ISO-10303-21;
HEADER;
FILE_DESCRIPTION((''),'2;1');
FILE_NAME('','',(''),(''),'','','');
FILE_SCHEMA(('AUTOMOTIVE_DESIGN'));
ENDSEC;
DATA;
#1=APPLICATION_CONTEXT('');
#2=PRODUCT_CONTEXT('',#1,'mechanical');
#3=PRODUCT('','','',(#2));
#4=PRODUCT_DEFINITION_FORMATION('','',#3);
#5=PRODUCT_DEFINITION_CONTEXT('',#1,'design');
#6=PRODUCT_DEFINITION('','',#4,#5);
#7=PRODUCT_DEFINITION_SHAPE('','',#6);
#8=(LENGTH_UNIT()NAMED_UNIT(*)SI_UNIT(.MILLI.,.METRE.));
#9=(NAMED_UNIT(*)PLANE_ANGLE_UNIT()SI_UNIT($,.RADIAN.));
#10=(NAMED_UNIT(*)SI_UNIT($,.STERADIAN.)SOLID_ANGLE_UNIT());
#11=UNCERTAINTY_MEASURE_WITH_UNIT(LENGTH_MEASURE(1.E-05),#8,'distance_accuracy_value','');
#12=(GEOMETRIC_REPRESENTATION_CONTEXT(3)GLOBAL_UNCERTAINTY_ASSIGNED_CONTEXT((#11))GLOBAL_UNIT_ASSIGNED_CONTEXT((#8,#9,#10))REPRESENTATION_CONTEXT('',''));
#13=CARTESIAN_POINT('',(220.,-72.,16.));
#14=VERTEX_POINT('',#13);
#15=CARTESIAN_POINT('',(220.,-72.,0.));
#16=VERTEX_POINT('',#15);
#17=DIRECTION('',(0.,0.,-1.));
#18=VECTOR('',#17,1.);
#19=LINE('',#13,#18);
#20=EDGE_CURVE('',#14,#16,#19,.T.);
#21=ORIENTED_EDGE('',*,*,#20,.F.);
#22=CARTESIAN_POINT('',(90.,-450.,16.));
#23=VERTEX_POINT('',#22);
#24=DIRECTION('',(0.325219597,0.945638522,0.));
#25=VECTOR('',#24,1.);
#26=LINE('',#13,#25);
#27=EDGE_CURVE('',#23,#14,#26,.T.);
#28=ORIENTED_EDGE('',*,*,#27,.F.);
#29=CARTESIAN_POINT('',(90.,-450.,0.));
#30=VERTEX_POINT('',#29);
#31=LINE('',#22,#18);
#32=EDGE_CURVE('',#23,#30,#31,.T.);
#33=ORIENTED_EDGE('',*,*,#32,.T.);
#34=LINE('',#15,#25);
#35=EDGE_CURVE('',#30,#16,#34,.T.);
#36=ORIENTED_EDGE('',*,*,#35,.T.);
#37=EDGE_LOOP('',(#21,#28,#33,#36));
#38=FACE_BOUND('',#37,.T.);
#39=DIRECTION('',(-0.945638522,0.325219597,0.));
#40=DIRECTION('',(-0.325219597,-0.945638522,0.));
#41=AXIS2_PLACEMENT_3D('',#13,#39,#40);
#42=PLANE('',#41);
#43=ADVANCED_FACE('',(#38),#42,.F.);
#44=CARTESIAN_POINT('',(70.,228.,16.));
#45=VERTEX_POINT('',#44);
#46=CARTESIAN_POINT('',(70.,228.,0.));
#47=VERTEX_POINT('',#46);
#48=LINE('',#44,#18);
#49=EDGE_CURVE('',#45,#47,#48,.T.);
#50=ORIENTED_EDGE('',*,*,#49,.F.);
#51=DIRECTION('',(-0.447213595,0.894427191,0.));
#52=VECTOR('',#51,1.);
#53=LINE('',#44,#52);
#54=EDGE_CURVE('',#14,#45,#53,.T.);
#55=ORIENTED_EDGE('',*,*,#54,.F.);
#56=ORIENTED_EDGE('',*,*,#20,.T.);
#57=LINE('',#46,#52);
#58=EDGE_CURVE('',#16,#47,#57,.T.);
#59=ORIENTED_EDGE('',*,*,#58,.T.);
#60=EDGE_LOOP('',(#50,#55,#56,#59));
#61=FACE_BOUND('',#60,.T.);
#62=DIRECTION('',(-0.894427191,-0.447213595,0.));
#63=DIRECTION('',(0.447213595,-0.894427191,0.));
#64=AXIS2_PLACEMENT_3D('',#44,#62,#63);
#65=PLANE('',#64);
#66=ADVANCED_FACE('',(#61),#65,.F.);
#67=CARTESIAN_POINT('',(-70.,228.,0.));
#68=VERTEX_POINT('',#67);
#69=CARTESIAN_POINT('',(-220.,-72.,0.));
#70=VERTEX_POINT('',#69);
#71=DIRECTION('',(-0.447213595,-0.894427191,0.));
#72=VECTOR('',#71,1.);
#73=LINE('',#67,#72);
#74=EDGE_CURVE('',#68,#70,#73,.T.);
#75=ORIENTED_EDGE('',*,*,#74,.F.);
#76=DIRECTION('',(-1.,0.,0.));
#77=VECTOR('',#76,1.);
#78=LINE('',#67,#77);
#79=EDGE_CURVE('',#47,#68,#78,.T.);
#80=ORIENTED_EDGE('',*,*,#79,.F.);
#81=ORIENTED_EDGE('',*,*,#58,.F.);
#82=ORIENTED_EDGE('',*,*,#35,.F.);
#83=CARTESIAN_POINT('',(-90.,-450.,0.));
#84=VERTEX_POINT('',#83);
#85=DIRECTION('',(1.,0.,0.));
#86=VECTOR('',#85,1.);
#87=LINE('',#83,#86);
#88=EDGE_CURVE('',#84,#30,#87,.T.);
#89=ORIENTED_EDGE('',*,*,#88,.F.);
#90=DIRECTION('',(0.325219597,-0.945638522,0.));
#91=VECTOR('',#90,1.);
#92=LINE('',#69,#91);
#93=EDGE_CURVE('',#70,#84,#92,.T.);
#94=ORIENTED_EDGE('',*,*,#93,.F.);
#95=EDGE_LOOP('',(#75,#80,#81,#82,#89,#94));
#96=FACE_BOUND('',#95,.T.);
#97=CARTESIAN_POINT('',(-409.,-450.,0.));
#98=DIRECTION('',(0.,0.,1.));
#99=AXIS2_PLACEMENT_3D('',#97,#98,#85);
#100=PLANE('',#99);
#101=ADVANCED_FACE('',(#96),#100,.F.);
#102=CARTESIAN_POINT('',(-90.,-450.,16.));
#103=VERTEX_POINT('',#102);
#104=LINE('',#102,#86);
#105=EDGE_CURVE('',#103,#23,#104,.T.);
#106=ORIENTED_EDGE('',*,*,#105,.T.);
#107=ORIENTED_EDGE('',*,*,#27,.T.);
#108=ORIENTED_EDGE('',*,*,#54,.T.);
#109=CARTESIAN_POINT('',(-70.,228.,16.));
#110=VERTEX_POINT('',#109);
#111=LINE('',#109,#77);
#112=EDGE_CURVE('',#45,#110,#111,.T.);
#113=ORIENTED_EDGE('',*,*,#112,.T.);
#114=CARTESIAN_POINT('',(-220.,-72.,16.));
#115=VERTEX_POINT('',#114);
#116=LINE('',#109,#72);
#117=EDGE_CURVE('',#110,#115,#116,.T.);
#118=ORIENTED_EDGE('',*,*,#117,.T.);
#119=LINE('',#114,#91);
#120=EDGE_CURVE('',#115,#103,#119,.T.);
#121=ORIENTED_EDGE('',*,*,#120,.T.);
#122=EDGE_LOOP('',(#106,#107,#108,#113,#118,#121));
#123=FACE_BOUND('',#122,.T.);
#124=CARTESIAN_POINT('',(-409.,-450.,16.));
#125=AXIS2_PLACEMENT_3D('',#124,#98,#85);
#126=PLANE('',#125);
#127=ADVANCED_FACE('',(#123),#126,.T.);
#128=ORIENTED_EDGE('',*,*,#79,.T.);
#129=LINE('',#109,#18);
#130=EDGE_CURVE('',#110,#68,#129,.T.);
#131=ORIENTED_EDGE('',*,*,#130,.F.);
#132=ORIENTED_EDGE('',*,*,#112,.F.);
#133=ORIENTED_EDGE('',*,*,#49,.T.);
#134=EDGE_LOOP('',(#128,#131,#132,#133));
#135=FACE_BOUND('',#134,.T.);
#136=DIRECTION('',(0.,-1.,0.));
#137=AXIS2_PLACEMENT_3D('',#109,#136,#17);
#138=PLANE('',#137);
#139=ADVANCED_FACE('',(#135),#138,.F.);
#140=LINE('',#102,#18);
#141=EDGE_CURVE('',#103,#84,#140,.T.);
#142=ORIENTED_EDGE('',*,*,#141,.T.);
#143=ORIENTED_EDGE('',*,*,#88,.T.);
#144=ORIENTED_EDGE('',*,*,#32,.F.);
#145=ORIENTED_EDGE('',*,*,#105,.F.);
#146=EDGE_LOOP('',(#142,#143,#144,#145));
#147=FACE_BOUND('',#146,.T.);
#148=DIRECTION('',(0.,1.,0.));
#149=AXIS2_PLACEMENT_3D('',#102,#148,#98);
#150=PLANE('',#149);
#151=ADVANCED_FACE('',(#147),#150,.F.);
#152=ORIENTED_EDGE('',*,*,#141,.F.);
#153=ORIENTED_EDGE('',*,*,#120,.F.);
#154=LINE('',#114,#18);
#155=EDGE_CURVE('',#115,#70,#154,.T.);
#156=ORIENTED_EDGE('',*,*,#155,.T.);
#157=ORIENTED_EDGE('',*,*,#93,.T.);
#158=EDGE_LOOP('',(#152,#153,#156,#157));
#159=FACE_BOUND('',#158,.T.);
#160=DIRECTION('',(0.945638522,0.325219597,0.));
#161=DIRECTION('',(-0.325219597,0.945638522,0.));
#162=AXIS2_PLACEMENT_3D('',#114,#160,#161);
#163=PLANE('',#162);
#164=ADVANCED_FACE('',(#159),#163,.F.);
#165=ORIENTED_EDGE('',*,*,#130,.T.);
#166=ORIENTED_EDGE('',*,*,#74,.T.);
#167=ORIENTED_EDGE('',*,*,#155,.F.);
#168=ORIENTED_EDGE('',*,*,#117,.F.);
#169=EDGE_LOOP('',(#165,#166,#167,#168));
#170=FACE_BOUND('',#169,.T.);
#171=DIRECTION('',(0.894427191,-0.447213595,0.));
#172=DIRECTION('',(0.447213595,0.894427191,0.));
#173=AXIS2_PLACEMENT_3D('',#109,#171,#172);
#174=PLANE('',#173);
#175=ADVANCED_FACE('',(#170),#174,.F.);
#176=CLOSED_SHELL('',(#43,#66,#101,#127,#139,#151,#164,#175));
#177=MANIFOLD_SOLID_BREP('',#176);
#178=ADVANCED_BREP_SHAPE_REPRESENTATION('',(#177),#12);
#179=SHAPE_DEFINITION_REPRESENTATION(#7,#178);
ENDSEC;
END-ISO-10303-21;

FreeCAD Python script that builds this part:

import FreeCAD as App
import Part
import Sketcher
Q = App.Units.Quantity


def add_polygon(sketch, points):
    """Adds a closed chain of lines whose ends are joined by coincident constraints."""
    first, n = sketch.GeometryCount, len(points)
    for a, b in zip(points, points[1:] + points[:1]):
        sketch.addGeometry(Part.LineSegment(App.Vector(*a, 0), App.Vector(*b, 0)), False)
    for i in range(n):
        sketch.addConstraint(Sketcher.Constraint("Coincident", first + i, 2, first + (i + 1) % n, 1))

doc = App.newDocument("Part")
params = doc.addObject("Spreadsheet::Sheet", "Params")
for row, (alias, value) in enumerate([
    ("sketch1_width", "140 mm"),
    ("sketch1_width2", "180 mm"),
    ("pad1_length", "16 mm"),
], start=1):
    params.set(f"A{row}", alias)
    params.set(f"B{row}", "=" + value)
    params.setAlias(f"B{row}", alias)

body = doc.addObject("PartDesign::Body", "Body")

# Sketch on XY plane
sketch1 = body.newObject("Sketcher::SketchObject", "Sketch")
sketch1.AttachmentSupport = (doc.getObject("XY_Plane"), [""])
sketch1.MapMode = "FlatFace"
add_polygon(sketch1, [(70, 228), (-70, 228), (-220, -72), (-90, -450), (90, -450), (220, -72)])  # lines 0-5
sketch1.addConstraint([
    Sketcher.Constraint("Horizontal", 0),
    Sketcher.Constraint("Horizontal", 3),
    Sketcher.Constraint("Symmetric", 1, 2, 4, 2, -2),
    Sketcher.Constraint("Equal", 2, 4),
    Sketcher.Constraint("Equal", 1, 5),
    Sketcher.Constraint("DistanceX", 0, 2, 0, 1, Q("140 mm")),
    Sketcher.Constraint("DistanceX", 3, 1, 3, 2, Q("180 mm")),
    Sketcher.Constraint("DistanceY", -1, 1, 0, 2, Q("228 mm")),
    Sketcher.Constraint("DistanceX", 1, 2, -1, 1, Q("220 mm")),
    Sketcher.Constraint("DistanceY", 1, 2, -1, 1, Q("72 mm")),
    Sketcher.Constraint("DistanceY", 2, 2, -1, 1, Q("450 mm")),
])
sketch1.setExpression("Constraints[11]", "Params.sketch1_width")
sketch1.setExpression("Constraints[12]", "Params.sketch1_width2")
pad1 = body.newObject("PartDesign::Pad", "Pad")
pad1.Profile = sketch1
pad1.setExpression("Length", "Params.pad1_length")

doc.recompute()
